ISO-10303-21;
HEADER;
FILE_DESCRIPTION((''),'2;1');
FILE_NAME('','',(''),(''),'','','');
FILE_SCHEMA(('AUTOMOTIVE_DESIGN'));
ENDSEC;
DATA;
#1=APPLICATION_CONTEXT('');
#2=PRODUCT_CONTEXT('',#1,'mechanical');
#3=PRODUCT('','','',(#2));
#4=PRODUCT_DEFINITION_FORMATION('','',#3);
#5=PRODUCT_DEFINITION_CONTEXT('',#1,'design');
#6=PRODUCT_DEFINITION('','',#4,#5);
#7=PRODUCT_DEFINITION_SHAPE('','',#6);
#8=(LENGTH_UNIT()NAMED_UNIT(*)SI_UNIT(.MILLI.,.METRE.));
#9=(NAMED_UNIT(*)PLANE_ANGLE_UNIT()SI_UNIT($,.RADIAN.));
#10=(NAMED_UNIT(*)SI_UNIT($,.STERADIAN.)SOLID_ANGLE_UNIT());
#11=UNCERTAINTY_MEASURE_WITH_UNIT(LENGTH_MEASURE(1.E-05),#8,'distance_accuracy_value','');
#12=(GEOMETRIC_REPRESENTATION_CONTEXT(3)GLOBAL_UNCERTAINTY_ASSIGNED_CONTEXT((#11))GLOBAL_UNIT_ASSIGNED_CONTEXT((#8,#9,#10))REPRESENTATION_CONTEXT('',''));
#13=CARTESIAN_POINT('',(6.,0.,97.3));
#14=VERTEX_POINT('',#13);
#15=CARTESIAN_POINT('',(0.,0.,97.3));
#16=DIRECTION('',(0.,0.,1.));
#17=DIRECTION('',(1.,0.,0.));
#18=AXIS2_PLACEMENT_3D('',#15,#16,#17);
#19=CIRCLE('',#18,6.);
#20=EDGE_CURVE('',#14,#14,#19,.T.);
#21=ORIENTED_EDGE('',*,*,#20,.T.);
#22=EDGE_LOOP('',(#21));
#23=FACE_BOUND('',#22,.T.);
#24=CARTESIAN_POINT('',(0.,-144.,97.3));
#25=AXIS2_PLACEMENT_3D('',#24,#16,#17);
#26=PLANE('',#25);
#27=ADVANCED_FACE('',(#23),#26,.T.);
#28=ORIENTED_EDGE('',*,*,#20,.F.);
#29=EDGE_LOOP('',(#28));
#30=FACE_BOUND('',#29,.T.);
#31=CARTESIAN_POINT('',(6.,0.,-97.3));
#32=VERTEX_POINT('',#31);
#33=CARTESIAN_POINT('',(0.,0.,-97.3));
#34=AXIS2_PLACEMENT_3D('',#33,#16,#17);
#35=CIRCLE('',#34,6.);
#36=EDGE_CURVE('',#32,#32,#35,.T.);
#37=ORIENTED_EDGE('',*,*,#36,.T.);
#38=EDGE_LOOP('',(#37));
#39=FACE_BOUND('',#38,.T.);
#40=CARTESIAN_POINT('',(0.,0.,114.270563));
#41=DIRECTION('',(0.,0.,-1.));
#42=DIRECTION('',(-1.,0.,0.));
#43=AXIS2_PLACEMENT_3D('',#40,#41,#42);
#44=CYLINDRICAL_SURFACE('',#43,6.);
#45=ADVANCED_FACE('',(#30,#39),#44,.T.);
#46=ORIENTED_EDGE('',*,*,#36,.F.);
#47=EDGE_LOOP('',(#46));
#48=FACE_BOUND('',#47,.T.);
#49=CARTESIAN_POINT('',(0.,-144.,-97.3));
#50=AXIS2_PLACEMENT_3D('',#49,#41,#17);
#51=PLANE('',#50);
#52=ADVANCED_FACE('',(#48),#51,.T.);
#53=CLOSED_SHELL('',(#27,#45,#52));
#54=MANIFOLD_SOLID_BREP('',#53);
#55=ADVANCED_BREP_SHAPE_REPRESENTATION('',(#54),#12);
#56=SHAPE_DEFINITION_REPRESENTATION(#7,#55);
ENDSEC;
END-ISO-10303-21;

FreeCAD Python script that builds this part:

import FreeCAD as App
import Part
import Sketcher
from FreeCAD import Vector
Q = App.Units.Quantity

doc = App.newDocument("Part")
body = doc.addObject("PartDesign::Body", "Body")

sketch1 = doc.addObject("Sketcher::SketchObject", "Sketch")
body.addObject(sketch1)
sketch1.AttachmentSupport = (doc.XY_Plane, [""])
sketch1.MapMode = "FlatFace"
sketch1.addGeometry(Part.Circle(Vector(0, 0, 0), Vector(0, 0, 1), 6), False)
sketch1.addConstraint([
    Sketcher.Constraint("Coincident", 0, 3, -1, 1),
    Sketcher.Constraint("Diameter", 0, Q("12 mm")),
])
pad1 = doc.addObject("PartDesign::Pad", "Pad")
body.addObject(pad1)
pad1.Profile = sketch1
pad1.Length = 97.3
body2 = doc.addObject("PartDesign::Body", "Body001")
doc.recompute()

body2.BaseFeature = body
doc.recompute()

mirroring = doc.addObject("Part::Mirroring", "Mirroring")
mirroring.Source = body
mirroring.Base = Vector(0, 0, 0)
mirroring.Normal = Vector(0, 0, 1)
body3 = doc.addObject("PartDesign::Body", "Body002")
body3.BaseFeature = mirroring
boolean = doc.addObject("PartDesign::Boolean", "Boolean")
body2.addObject(boolean)
boolean.Type = "Fuse"
boolean.addObjects([body3])
doc.recompute()
mirroring.Visibility = False

doc.recompute()
